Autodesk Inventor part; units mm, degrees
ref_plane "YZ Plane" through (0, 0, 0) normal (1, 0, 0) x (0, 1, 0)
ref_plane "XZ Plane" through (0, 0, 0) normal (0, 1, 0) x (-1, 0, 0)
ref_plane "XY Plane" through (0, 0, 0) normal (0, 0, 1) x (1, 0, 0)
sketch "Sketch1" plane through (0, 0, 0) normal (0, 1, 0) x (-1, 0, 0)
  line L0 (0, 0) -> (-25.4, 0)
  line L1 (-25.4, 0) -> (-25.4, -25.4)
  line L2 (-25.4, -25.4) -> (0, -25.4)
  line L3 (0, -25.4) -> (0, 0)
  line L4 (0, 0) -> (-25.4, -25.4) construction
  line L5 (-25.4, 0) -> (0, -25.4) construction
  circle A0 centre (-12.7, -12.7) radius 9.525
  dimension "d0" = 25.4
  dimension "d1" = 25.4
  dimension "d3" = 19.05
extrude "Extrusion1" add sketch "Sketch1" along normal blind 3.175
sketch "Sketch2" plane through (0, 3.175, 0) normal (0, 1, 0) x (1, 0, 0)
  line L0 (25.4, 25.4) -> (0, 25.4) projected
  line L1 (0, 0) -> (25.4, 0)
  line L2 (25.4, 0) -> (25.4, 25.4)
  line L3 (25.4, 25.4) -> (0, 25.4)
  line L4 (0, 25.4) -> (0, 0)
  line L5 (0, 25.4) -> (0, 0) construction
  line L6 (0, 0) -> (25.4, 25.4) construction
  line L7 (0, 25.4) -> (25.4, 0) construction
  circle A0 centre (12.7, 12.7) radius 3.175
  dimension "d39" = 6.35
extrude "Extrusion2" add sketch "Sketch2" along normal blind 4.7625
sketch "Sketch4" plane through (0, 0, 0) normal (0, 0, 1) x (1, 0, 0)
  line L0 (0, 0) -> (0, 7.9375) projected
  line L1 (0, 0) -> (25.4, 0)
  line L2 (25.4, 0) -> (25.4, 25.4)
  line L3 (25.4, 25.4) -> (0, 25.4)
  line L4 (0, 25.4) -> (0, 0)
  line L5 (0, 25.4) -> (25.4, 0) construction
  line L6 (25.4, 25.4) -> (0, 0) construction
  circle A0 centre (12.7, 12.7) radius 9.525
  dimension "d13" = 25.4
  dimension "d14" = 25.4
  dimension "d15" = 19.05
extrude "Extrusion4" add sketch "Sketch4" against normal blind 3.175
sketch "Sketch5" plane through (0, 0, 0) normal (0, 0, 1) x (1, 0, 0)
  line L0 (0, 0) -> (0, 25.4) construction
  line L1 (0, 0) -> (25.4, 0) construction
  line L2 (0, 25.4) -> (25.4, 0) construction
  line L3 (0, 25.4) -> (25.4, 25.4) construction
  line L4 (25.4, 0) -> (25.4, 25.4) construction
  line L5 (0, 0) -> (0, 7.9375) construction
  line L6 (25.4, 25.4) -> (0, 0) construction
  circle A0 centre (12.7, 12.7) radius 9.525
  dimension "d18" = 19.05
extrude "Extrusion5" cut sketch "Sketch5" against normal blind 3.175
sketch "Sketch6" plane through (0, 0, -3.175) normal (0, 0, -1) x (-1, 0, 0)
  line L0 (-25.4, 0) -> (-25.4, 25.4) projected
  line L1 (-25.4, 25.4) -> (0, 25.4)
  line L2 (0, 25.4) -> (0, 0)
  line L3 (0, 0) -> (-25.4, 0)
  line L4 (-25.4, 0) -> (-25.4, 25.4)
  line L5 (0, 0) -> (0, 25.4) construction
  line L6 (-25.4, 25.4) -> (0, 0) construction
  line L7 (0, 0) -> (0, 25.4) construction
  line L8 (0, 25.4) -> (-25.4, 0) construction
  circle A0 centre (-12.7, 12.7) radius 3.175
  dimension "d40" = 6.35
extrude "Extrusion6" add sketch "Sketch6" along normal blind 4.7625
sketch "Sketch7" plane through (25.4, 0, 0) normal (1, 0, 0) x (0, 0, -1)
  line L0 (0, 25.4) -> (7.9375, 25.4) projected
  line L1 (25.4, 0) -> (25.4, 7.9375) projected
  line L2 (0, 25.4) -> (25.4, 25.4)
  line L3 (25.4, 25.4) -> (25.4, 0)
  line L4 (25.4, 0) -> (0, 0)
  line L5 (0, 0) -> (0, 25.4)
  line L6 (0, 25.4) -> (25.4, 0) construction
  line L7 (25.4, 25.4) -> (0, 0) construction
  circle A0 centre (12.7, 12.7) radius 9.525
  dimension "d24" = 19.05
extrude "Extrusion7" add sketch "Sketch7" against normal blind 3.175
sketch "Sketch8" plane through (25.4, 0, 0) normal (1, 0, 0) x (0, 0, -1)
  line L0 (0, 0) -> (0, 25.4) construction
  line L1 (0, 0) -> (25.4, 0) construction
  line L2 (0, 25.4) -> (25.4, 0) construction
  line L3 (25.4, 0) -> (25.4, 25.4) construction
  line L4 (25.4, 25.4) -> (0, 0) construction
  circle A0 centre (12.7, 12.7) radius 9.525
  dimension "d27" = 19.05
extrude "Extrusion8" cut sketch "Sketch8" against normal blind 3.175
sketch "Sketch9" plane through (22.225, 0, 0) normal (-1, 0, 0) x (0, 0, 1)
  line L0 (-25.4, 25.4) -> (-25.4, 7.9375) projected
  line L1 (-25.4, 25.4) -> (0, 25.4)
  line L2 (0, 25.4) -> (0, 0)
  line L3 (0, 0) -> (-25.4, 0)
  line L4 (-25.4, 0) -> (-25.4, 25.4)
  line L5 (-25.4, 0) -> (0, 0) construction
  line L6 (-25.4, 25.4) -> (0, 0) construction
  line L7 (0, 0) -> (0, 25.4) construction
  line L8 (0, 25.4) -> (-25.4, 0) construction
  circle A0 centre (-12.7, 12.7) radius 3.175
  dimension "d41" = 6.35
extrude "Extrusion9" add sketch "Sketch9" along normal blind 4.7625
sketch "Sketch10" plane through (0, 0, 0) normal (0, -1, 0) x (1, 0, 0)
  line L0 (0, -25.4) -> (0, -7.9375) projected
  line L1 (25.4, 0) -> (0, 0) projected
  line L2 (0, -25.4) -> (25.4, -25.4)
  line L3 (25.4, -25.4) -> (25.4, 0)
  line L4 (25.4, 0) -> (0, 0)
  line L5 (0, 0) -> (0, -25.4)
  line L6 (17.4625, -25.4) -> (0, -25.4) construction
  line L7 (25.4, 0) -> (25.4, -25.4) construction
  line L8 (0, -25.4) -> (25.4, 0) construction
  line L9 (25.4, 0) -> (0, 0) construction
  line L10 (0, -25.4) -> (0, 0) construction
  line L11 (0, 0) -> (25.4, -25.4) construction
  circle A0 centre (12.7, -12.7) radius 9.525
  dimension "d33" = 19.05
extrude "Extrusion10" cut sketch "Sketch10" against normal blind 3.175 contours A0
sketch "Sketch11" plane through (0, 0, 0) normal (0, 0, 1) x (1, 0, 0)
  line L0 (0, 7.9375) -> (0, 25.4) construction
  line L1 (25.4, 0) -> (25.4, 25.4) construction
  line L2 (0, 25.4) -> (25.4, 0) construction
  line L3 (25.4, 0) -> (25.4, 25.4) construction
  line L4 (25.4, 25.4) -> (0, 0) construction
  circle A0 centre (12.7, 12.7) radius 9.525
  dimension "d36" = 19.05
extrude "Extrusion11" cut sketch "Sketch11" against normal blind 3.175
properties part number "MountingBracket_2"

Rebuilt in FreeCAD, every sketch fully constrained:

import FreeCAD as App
import Part
import Sketcher

V = App.Vector
Q = App.Units.Quantity


def add_polygon(sketch, points):
    """Adds a closed chain of lines whose ends are joined by coincident constraints."""
    first, n = sketch.GeometryCount, len(points)
    for a, b in zip(points, points[1:] + points[:1]):
        sketch.addGeometry(Part.LineSegment(App.Vector(*a, 0), App.Vector(*b, 0)), False)
    for i in range(n):
        sketch.addConstraint(Sketcher.Constraint("Coincident", first + i, 2, first + (i + 1) % n, 1))

doc = App.newDocument("Part")
body = doc.addObject("PartDesign::Body", "Body")

# Sketch on XZ plane
sketch1 = body.newObject("Sketcher::SketchObject", "Sketch")
sketch1.AttachmentSupport = (doc.getObject("XZ_Plane"), [""])
sketch1.MapMode = "FlatFace"
add_polygon(sketch1, [(0, -25), (0, 0), (25, 0), (25, -25)])  # lines 0-3
sketch1.addGeometry(Part.Circle(V(13, -13, 0), V(0, 0, 1), 10), False)  # 4
sketch1.addConstraint(Sketcher.Constraint("Vertical", 0))
sketch1.addConstraint(Sketcher.Constraint("Horizontal", 1))
sketch1.addConstraint(Sketcher.Constraint("Vertical", 2))
sketch1.addConstraint(Sketcher.Constraint("Horizontal", 3))
sketch1.addConstraint(Sketcher.Constraint("Coincident", 0, 2, -1, 1))
sketch1.addConstraint(Sketcher.Constraint("Equal", 3, 0))
sketch1.addConstraint(Sketcher.Constraint("Diameter", 4, Q("0.75 in")))
sketch1.addConstraint(Sketcher.Constraint("DistanceX", 1, 1, 1, 2, Q("1 in")))
sketch1.addConstraint(Sketcher.Constraint("DistanceX", -1, 1, 4, 3, Q("0.5 in")))
sketch1.addConstraint(Sketcher.Constraint("DistanceY", 4, 3, -1, 1, Q("0.5 in")))
pad1 = body.newObject("PartDesign::Pad", "Pad")
pad1.Profile = sketch1
pad1.Length = Q("0.125 in")
pad1.Reversed = True

# Sketch on XZ plane
sketch2 = body.newObject("Sketcher::SketchObject", "Sketch001")
sketch2.AttachmentSupport = (doc.getObject("XZ_Plane"), [""])
sketch2.MapMode = "FlatFace"
sketch2.AttachmentOffset = App.Placement(V(0, 0, -0.125 * 25.4), App.Rotation())
add_polygon(sketch2, [(25.4, 0), (25.4, -25.4), (0, -25.4), (0, 0)])  # lines 0-3
sketch2.addGeometry(Part.Circle(V(12.7, -12.7, 0), V(0, 0, 1), 3.2), False)  # 4
sketch2.addConstraint(Sketcher.Constraint("Vertical", 0))
sketch2.addConstraint(Sketcher.Constraint("Horizontal", 1))
sketch2.addConstraint(Sketcher.Constraint("Vertical", 2))
sketch2.addConstraint(Sketcher.Constraint("Horizontal", 3))
sketch2.addConstraint(Sketcher.Constraint("Coincident", 2, 2, -1, 1))
sketch2.addConstraint(Sketcher.Constraint("Equal", 3, 0))
sketch2.addConstraint(Sketcher.Constraint("Diameter", 4, Q("0.25 in")))
sketch2.addConstraint(Sketcher.Constraint("DistanceX", 1, 2, 1, 1, Q("1 in")))
sketch2.addConstraint(Sketcher.Constraint("DistanceX", -1, 1, 4, 3, Q("0.5 in")))
sketch2.addConstraint(Sketcher.Constraint("DistanceY", 4, 3, -1, 1, Q("0.5 in")))
pad2 = body.newObject("PartDesign::Pad", "Pad001")
pad2.Profile = sketch2
pad2.Length = Q("0.1875 in")
pad2.Reversed = True

# Sketch on XY plane
sketch3 = body.newObject("Sketcher::SketchObject", "Sketch002")
sketch3.AttachmentSupport = (doc.getObject("XY_Plane"), [""])
sketch3.MapMode = "FlatFace"
add_polygon(sketch3, [(0, 25), (0, 0), (25, 0), (25, 25)])  # lines 0-3
sketch3.addGeometry(Part.Circle(V(13, 13, 0), V(0, 0, 1), 10), False)  # 4
sketch3.addConstraint(Sketcher.Constraint("Vertical", 0))
sketch3.addConstraint(Sketcher.Constraint("Horizontal", 1))
sketch3.addConstraint(Sketcher.Constraint("Vertical", 2))
sketch3.addConstraint(Sketcher.Constraint("Horizontal", 3))
sketch3.addConstraint(Sketcher.Constraint("Coincident", 0, 2, -1, 1))
sketch3.addConstraint(Sketcher.Constraint("Equal", 3, 0))
sketch3.addConstraint(Sketcher.Constraint("Diameter", 4, Q("0.75 in")))
sketch3.addConstraint(Sketcher.Constraint("DistanceX", 1, 1, 1, 2, Q("1 in")))
sketch3.addConstraint(Sketcher.Constraint("DistanceX", -1, 1, 4, 3, Q("0.5 in")))
sketch3.addConstraint(Sketcher.Constraint("DistanceY", -1, 1, 4, 3, Q("0.5 in")))
pad3 = body.newObject("PartDesign::Pad", "Pad002")
pad3.Profile = sketch3
pad3.Length = Q("0.125 in")
pad3.Reversed = True

# Sketch on XY plane
sketch4 = body.newObject("Sketcher::SketchObject", "Sketch003")
sketch4.AttachmentSupport = (doc.getObject("XY_Plane"), [""])
sketch4.MapMode = "FlatFace"
sketch4.addGeometry(Part.Circle(V(13, 13, 0), V(0, 0, 1), 10), False)
sketch4.addConstraint(Sketcher.Constraint("Diameter", 0, Q("0.75 in")))
sketch4.addConstraint(Sketcher.Constraint("DistanceX", -1, 1, 0, 3, Q("0.5 in")))
sketch4.addConstraint(Sketcher.Constraint("DistanceY", -1, 1, 0, 3, Q("0.5 in")))
pocket1 = body.newObject("PartDesign::Pocket", "Pocket")
pocket1.Profile = sketch4
pocket1.Length = Q("0.125 in")

# Sketch on XY plane
sketch5 = body.newObject("Sketcher::SketchObject", "Sketch004")
sketch5.AttachmentSupport = (doc.getObject("XY_Plane"), [""])
sketch5.MapMode = "FlatFace"
sketch5.AttachmentOffset = App.Placement(V(0, 0, -0.125 * 25.4), App.Rotation())
add_polygon(sketch5, [(25.4, 25.4), (25.4, 0), (0, 0), (0, 25.4)])  # lines 0-3
sketch5.addGeometry(Part.Circle(V(12.7, 12.7, 0), V(0, 0, 1), 3.2), False)  # 4
sketch5.addConstraint(Sketcher.Constraint("Vertical", 0))
sketch5.addConstraint(Sketcher.Constraint("Horizontal", 1))
sketch5.addConstraint(Sketcher.Constraint("Vertical", 2))
sketch5.addConstraint(Sketcher.Constraint("Horizontal", 3))
sketch5.addConstraint(Sketcher.Constraint("Coincident", 1, 2, -1, 1))
sketch5.addConstraint(Sketcher.Constraint("Equal", 3, 0))
sketch5.addConstraint(Sketcher.Constraint("Diameter", 4, Q("0.25 in")))
sketch5.addConstraint(Sketcher.Constraint("DistanceX", 1, 2, 1, 1, Q("1 in")))
sketch5.addConstraint(Sketcher.Constraint("DistanceX", -1, 1, 4, 3, Q("0.5 in")))
sketch5.addConstraint(Sketcher.Constraint("DistanceY", -1, 1, 4, 3, Q("0.5 in")))
pad4 = body.newObject("PartDesign::Pad", "Pad003")
pad4.Profile = sketch5
pad4.Length = Q("0.1875 in")
pad4.Reversed = True

# Sketch on YZ plane
sketch6 = body.newObject("Sketcher::SketchObject", "Sketch005")
sketch6.AttachmentSupport = (doc.getObject("YZ_Plane"), [""])
sketch6.MapMode = "FlatFace"
sketch6.AttachmentOffset = App.Placement(V(0, 0, 1 * 25.4), App.Rotation())
add_polygon(sketch6, [(25, -25), (25, 0), (0, 0), (0, -25)])  # lines 0-3
sketch6.addGeometry(Part.Circle(V(13, -13, 0), V(0, 0, 1), 10), False)  # 4
sketch6.addConstraint(Sketcher.Constraint("Vertical", 0))
sketch6.addConstraint(Sketcher.Constraint("Horizontal", 1))
sketch6.addConstraint(Sketcher.Constraint("Vertical", 2))
sketch6.addConstraint(Sketcher.Constraint("Horizontal", 3))
sketch6.addConstraint(Sketcher.Constraint("Coincident", 1, 2, -1, 1))
sketch6.addConstraint(Sketcher.Constraint("Equal", 3, 0))
sketch6.addConstraint(Sketcher.Constraint("Diameter", 4, Q("0.75 in")))
sketch6.addConstraint(Sketcher.Constraint("DistanceX", 1, 2, 1, 1, Q("1 in")))
sketch6.addConstraint(Sketcher.Constraint("DistanceX", -1, 1, 4, 3, Q("0.5 in")))
sketch6.addConstraint(Sketcher.Constraint("DistanceY", 4, 3, -1, 1, Q("0.5 in")))
pad5 = body.newObject("PartDesign::Pad", "Pad004")
pad5.Profile = sketch6
pad5.Length = Q("0.125 in")
pad5.Reversed = True

# Sketch on YZ plane
sketch7 = body.newObject("Sketcher::SketchObject", "Sketch006")
sketch7.AttachmentSupport = (doc.getObject("YZ_Plane"), [""])
sketch7.MapMode = "FlatFace"
sketch7.AttachmentOffset = App.Placement(V(0, 0, 1 * 25.4), App.Rotation())
sketch7.addGeometry(Part.Circle(V(13, -13, 0), V(0, 0, 1), 10), False)
sketch7.addConstraint(Sketcher.Constraint("Diameter", 0, Q("0.75 in")))
sketch7.addConstraint(Sketcher.Constraint("DistanceX", -1, 1, 0, 3, Q("0.5 in")))
sketch7.addConstraint(Sketcher.Constraint("DistanceY", 0, 3, -1, 1, Q("0.5 in")))
pocket2 = body.newObject("PartDesign::Pocket", "Pocket001")
pocket2.Profile = sketch7
pocket2.Length = Q("0.125 in")

# Sketch on YZ plane
sketch8 = body.newObject("Sketcher::SketchObject", "Sketch007")
sketch8.AttachmentSupport = (doc.getObject("YZ_Plane"), [""])
sketch8.MapMode = "FlatFace"
sketch8.AttachmentOffset = App.Placement(V(0, 0, 0.875 * 25.4), App.Rotation())
add_polygon(sketch8, [(25.4, 0), (25.4, -25.4), (0, -25.4), (0, 0)])  # lines 0-3
sketch8.addGeometry(Part.Circle(V(12.7, -12.7, 0), V(0, 0, 1), 3.2), False)  # 4
sketch8.addConstraint(Sketcher.Constraint("Vertical", 0))
sketch8.addConstraint(Sketcher.Constraint("Horizontal", 1))
sketch8.addConstraint(Sketcher.Constraint("Vertical", 2))
sketch8.addConstraint(Sketcher.Constraint("Horizontal", 3))
sketch8.addConstraint(Sketcher.Constraint("Coincident", 2, 2, -1, 1))
sketch8.addConstraint(Sketcher.Constraint("Equal", 3, 0))
sketch8.addConstraint(Sketcher.Constraint("Diameter", 4, Q("0.25 in")))
sketch8.addConstraint(Sketcher.Constraint("DistanceX", 1, 2, 1, 1, Q("1 in")))
sketch8.addConstraint(Sketcher.Constraint("DistanceX", -1, 1, 4, 3, Q("0.5 in")))
sketch8.addConstraint(Sketcher.Constraint("DistanceY", 4, 3, -1, 1, Q("0.5 in")))
pad6 = body.newObject("PartDesign::Pad", "Pad005")
pad6.Profile = sketch8
pad6.Length = Q("0.1875 in")
pad6.Reversed = True

# Sketch on XZ plane
sketch9 = body.newObject("Sketcher::SketchObject", "Sketch008")
sketch9.AttachmentSupport = (doc.getObject("XZ_Plane"), [""])
sketch9.MapMode = "FlatFace"
sketch9.addGeometry(Part.Circle(V(13, -13, 0), V(0, 0, 1), 10), False)
sketch9.addConstraint(Sketcher.Constraint("Diameter", 0, Q("0.75 in")))
sketch9.addConstraint(Sketcher.Constraint("DistanceX", -1, 1, 0, 3, Q("0.5 in")))
sketch9.addConstraint(Sketcher.Constraint("DistanceY", 0, 3, -1, 1, Q("0.5 in")))
pocket3 = body.newObject("PartDesign::Pocket", "Pocket002")
pocket3.Profile = sketch9
pocket3.Length = Q("0.125 in")

# Sketch on XY plane
sketch10 = body.newObject("Sketcher::SketchObject", "Sketch009")
sketch10.AttachmentSupport = (doc.getObject("XY_Plane"), [""])
sketch10.MapMode = "FlatFace"
sketch10.addGeometry(Part.Circle(V(13, 13, 0), V(0, 0, 1), 10), False)
sketch10.addConstraint(Sketcher.Constraint("Diameter", 0, Q("0.75 in")))
sketch10.addConstraint(Sketcher.Constraint("DistanceX", -1, 1, 0, 3, Q("0.5 in")))
sketch10.addConstraint(Sketcher.Constraint("DistanceY", -1, 1, 0, 3, Q("0.5 in")))
pocket4 = body.newObject("PartDesign::Pocket", "Pocket003")
pocket4.Profile = sketch10
pocket4.Length = Q("0.125 in")

doc.recompute()
